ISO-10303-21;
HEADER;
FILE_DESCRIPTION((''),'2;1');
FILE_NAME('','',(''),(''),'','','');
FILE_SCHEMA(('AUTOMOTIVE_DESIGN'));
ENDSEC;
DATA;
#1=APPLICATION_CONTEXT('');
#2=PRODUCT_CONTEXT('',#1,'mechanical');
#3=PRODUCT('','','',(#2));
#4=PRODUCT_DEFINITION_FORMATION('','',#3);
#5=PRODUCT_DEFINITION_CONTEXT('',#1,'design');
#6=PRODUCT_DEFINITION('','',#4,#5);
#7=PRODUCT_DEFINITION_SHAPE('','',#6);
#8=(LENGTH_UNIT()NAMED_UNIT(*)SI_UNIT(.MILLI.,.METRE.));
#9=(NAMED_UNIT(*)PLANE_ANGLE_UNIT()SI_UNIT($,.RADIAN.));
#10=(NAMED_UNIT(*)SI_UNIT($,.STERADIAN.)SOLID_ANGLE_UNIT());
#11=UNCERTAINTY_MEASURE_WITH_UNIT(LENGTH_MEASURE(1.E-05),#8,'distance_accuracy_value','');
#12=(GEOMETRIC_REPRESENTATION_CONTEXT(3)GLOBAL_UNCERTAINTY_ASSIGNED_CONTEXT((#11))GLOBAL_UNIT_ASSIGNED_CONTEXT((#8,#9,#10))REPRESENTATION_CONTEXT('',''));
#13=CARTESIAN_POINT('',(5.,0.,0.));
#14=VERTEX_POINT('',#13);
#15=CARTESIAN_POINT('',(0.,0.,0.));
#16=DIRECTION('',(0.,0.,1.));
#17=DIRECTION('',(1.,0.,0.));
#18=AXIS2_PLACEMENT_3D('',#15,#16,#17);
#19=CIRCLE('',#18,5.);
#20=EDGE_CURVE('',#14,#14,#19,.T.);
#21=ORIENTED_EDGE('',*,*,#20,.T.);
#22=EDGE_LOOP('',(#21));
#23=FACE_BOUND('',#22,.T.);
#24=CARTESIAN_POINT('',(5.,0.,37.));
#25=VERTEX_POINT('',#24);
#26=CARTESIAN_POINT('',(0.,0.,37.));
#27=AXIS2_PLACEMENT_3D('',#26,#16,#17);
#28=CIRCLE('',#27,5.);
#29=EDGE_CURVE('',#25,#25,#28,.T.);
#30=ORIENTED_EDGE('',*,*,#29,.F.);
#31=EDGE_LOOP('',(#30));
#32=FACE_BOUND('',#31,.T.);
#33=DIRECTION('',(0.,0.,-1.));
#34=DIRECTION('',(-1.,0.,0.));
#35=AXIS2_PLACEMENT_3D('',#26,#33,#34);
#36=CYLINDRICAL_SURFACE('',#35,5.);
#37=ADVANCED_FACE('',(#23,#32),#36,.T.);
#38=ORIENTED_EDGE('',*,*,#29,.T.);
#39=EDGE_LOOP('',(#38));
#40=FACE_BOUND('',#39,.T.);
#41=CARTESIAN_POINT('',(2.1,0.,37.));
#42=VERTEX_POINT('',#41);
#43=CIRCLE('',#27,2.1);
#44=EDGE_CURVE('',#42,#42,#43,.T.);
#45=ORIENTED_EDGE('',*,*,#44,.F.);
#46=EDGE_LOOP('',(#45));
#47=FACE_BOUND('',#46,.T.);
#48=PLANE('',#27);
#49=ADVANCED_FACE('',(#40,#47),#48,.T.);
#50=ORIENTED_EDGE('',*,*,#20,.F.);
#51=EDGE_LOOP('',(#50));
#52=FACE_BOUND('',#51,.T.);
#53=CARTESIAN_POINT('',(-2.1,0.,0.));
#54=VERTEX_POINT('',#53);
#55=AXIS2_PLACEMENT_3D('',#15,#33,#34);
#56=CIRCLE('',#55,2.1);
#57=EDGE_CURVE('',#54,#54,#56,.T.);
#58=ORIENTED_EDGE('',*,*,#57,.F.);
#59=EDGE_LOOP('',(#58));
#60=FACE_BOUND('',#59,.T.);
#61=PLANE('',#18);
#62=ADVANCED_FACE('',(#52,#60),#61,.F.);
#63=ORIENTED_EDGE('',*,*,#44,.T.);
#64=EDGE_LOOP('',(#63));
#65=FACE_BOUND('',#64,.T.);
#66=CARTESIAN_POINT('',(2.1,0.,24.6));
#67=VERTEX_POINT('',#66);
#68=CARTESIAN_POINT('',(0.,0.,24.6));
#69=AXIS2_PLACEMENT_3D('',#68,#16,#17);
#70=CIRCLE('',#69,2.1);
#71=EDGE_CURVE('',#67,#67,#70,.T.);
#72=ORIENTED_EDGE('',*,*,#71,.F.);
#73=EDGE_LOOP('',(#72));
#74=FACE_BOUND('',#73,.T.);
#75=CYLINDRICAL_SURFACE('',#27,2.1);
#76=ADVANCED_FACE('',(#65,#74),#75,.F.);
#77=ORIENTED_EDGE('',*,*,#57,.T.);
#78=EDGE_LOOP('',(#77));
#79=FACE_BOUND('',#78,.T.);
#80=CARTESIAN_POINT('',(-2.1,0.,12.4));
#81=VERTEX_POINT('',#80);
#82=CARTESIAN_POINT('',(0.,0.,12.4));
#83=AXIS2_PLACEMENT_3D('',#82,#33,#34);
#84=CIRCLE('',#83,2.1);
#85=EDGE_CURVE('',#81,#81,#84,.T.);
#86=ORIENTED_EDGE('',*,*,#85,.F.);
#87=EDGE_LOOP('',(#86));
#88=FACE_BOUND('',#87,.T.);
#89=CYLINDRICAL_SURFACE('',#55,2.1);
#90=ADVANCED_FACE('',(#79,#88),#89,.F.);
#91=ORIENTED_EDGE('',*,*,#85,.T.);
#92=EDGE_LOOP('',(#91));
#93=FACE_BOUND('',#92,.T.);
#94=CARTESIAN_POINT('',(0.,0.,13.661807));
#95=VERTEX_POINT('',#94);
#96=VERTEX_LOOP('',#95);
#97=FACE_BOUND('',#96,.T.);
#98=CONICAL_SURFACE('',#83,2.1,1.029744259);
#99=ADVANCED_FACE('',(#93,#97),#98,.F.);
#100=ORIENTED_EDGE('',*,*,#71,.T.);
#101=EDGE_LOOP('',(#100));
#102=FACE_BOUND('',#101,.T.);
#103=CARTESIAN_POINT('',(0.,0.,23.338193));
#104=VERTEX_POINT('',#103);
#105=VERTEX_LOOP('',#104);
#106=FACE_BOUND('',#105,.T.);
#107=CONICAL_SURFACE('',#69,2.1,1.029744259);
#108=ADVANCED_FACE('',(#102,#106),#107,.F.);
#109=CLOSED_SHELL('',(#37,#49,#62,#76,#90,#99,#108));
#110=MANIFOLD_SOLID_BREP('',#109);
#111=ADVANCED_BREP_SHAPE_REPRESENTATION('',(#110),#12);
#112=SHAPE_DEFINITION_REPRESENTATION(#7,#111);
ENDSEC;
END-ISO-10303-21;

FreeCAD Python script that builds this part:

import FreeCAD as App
import Part
import Sketcher
from FreeCAD import Vector

doc = App.newDocument("Part")
body = doc.addObject("PartDesign::Body", "Body")

# Sketch on XY plane
sketch1 = body.newObject("Sketcher::SketchObject", "Sketch")
sketch1.AttachmentSupport = (doc.getObject("XY_Plane"), [""])
sketch1.MapMode = "FlatFace"
sketch1.addGeometry(Part.Circle(Vector(0, 0, 0), Vector(0, 0, 1), 5), False)
sketch1.addConstraint(Sketcher.Constraint("Coincident", 0, 3, -1, 1))
sketch1.addConstraint(Sketcher.Constraint("Diameter", 0, 10.0))
pad1 = body.newObject("PartDesign::Pad", "Pad")
pad1.Profile = sketch1
pad1.Length = 37

# Sketch on XY plane
sketch2 = body.newObject("Sketcher::SketchObject", "Sketch001")
sketch2.AttachmentSupport = (doc.getObject("XY_Plane"), [""])
sketch2.MapMode = "FlatFace"
sketch2.AttachmentOffset = App.Placement(Vector(0, 0, 37), App.Rotation())
sketch2.addGeometry(Part.Circle(Vector(0, 0, 0), Vector(0, 0, 1), 2.1), False)
sketch2.addConstraint(Sketcher.Constraint("Coincident", 0, 3, -1, 1))
sketch2.addConstraint(Sketcher.Constraint("Diameter", 0, 4.2))
doc.recompute()
hole = body.newObject("PartDesign::Hole", "Hole")
hole.Profile = sketch2
hole.ThreadType = "None"
hole.Diameter = 4.2
hole.DepthType = "Dimension"
hole.Depth = 12.4
hole.DrillPoint = "Angled"
hole.DrillPointAngle = 118

# Sketch on XY plane
sketch3 = body.newObject("Sketcher::SketchObject", "Sketch002")
sketch3.AttachmentSupport = (doc.getObject("XY_Plane"), [""])
sketch3.MapMode = "FlatFace"
sketch3.addGeometry(Part.Circle(Vector(0, 0, 0), Vector(0, 0, 1), 2.1), False)
sketch3.addConstraint(Sketcher.Constraint("Coincident", 0, 3, -1, 1))
sketch3.addConstraint(Sketcher.Constraint("Diameter", 0, 4.2))
doc.recompute()
hole2 = body.newObject("PartDesign::Hole", "Hole001")
hole2.Profile = sketch3
hole2.ThreadType = "None"
hole2.Diameter = 4.2
hole2.DepthType = "Dimension"
hole2.Depth = 12.4
hole2.DrillPoint = "Angled"
hole2.DrillPointAngle = 118
hole2.Reversed = True

doc.recompute()
